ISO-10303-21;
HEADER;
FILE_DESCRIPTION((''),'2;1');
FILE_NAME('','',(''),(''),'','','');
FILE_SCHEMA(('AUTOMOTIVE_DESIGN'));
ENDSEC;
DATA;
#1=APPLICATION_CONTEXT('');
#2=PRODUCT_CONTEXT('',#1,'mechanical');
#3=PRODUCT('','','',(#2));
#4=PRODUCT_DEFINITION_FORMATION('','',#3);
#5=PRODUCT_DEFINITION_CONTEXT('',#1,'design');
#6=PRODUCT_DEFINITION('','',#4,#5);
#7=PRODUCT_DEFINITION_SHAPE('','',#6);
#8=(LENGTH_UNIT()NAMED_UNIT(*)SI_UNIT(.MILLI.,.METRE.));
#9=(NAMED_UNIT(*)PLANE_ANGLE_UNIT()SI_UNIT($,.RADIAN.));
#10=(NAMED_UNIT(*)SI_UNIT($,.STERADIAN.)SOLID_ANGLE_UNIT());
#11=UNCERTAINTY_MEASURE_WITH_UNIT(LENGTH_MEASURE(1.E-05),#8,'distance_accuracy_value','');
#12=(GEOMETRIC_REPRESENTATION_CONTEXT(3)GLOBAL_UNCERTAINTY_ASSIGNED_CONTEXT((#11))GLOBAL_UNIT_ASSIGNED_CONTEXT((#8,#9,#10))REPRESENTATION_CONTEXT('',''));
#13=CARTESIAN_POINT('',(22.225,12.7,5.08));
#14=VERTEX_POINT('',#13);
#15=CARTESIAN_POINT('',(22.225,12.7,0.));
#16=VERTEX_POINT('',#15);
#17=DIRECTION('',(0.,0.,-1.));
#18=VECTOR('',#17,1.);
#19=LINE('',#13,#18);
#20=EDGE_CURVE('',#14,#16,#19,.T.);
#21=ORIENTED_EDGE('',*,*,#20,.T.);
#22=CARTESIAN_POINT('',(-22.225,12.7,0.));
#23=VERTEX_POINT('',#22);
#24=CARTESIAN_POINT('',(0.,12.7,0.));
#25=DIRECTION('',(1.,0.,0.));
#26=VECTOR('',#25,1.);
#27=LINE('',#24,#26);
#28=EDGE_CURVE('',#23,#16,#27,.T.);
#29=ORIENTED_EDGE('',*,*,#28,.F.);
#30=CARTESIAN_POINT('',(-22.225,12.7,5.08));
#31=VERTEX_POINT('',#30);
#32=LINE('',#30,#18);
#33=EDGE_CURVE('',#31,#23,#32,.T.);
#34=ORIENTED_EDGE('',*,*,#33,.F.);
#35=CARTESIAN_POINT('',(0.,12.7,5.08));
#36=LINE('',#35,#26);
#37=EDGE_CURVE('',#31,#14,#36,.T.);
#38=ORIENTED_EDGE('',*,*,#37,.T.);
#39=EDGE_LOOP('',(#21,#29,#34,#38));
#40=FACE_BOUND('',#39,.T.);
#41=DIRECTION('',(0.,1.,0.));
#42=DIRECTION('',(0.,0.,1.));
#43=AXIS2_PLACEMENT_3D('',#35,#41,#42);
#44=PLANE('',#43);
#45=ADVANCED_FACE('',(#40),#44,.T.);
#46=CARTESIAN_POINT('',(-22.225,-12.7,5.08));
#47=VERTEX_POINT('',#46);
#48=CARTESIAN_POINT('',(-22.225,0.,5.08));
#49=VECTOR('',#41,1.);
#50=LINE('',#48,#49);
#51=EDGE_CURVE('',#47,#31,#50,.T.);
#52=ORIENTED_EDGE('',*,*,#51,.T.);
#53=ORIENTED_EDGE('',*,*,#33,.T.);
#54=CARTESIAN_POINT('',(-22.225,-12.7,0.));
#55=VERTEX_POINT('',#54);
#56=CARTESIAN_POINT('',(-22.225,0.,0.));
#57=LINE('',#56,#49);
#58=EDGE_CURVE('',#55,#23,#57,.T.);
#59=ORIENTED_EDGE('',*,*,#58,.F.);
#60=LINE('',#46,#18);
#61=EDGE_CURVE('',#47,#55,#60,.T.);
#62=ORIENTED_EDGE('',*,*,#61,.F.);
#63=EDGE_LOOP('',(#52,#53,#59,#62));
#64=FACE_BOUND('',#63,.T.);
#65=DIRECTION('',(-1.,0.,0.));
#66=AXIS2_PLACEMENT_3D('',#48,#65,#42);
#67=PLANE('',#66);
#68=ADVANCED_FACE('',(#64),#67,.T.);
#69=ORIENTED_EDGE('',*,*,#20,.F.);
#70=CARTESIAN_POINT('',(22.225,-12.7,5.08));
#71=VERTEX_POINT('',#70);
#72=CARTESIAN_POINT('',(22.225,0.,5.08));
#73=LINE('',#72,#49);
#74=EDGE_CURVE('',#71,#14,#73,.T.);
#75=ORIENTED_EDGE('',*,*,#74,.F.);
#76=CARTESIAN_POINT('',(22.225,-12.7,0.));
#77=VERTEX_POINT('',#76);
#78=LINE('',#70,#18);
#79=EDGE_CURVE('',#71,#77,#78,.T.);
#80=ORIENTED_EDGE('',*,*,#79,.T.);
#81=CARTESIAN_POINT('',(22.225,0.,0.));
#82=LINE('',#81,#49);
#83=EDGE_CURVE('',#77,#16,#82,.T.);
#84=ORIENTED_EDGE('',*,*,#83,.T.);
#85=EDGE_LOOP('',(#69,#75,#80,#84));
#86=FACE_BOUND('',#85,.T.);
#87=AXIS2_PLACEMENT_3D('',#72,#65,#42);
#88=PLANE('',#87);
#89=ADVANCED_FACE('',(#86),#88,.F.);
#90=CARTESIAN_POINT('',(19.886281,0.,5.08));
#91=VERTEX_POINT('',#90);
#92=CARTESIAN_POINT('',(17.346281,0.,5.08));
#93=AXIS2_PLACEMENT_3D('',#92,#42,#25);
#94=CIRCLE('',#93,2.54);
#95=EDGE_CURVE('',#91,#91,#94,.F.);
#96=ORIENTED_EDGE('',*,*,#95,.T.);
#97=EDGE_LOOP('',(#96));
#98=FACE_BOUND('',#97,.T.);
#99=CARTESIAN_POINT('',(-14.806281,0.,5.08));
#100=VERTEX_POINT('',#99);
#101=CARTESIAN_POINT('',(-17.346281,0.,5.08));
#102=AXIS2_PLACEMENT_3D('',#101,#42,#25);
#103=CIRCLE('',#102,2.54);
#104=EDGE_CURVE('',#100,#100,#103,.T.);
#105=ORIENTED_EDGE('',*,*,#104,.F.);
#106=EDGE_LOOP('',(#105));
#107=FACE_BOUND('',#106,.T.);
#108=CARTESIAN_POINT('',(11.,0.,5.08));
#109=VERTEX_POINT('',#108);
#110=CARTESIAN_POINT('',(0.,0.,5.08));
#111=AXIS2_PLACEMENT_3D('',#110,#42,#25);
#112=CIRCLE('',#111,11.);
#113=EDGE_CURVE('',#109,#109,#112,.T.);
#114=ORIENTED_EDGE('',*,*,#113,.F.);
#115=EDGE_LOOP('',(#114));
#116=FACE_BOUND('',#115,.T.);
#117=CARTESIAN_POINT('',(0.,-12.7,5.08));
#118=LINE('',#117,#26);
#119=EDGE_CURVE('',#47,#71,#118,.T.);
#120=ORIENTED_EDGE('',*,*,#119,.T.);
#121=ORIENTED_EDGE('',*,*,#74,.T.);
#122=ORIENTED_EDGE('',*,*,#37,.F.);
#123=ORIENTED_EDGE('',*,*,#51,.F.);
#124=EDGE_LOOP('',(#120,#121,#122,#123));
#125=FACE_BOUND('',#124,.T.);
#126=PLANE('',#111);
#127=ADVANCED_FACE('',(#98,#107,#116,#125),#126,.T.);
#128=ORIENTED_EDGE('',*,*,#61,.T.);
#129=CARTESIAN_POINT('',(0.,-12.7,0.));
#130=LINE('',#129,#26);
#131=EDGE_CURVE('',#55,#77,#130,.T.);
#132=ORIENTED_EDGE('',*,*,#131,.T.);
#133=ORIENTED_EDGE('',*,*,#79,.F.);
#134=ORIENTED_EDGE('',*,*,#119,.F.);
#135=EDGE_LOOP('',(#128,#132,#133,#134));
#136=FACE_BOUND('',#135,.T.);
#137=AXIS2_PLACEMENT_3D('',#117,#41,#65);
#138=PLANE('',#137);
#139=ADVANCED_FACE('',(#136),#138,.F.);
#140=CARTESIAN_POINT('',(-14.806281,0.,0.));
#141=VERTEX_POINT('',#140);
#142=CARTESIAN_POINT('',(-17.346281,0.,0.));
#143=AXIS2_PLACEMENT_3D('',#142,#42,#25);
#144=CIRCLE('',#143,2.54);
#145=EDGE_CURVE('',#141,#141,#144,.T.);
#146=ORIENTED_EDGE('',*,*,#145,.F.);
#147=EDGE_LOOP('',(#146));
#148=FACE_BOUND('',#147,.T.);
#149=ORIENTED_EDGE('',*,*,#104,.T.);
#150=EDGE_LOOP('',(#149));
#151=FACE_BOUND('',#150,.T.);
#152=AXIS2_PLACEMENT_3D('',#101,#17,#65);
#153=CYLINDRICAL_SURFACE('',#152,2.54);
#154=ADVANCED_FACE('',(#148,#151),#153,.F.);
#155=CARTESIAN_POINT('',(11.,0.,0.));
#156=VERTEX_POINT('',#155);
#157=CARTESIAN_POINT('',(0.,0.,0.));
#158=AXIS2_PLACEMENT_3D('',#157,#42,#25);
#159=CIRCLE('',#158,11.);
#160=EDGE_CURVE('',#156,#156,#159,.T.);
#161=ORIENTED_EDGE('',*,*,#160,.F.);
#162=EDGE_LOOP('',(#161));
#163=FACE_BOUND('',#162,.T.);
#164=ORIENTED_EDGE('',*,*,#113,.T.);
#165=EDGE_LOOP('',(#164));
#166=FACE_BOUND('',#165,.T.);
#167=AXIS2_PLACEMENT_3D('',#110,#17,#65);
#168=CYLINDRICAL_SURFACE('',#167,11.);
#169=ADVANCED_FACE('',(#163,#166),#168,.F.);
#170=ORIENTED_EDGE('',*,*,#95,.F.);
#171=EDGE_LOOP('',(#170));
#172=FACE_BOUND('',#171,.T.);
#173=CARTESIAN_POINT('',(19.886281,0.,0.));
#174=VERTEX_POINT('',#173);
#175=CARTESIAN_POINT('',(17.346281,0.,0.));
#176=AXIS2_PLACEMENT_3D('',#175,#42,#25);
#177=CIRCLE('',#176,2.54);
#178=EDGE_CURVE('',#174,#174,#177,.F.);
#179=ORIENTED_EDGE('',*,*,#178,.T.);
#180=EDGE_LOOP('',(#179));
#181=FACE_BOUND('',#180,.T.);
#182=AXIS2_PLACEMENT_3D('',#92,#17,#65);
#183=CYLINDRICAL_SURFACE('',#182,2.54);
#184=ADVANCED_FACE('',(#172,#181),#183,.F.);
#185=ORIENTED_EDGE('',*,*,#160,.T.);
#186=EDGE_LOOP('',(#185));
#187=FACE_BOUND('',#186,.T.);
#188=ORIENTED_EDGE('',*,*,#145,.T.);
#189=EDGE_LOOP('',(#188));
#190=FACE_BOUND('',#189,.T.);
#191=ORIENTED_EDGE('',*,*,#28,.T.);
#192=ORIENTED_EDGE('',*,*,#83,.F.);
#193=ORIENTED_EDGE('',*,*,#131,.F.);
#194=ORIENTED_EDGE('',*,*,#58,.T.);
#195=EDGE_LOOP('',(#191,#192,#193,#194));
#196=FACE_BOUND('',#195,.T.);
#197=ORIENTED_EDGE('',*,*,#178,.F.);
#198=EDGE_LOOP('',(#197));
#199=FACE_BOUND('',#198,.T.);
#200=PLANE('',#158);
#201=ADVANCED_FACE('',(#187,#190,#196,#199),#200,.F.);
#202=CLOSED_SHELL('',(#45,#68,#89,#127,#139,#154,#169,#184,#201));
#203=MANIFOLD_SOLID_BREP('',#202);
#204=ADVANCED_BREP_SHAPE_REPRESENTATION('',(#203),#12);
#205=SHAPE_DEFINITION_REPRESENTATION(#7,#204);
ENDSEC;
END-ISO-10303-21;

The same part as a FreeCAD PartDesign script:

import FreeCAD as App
import Part
import Sketcher
Q = App.Units.Quantity


def add_polygon(sketch, points):
    """Adds a closed chain of lines whose ends are joined by coincident constraints."""
    first, n = sketch.GeometryCount, len(points)
    for a, b in zip(points, points[1:] + points[:1]):
        sketch.addGeometry(Part.LineSegment(App.Vector(*a, 0), App.Vector(*b, 0)), False)
    for i in range(n):
        sketch.addConstraint(Sketcher.Constraint("Coincident", first + i, 2, first + (i + 1) % n, 1))

doc = App.newDocument("Part")
body = doc.addObject("PartDesign::Body", "Body")

sketch1 = body.newObject("Sketcher::SketchObject", "Sketch")
sketch1.AttachmentSupport = (doc.getObject("XY_Plane"), [""])
sketch1.MapMode = "FlatFace"
add_polygon(sketch1, [(22.225, 12.7), (-22.225, 12.7), (-22.225, -12.7), (22.225, -12.7)])
sketch1.addGeometry(Part.Circle(App.Vector(17.346281, 0, 0), App.Vector(0, 0, 1), 2.54), False)
sketch1.addGeometry(Part.Circle(App.Vector(0, 0, 0), App.Vector(0, 0, 1), 11), False)
sketch1.addGeometry(Part.Circle(App.Vector(-17.346281, 0, 0), App.Vector(0, 0, 1), 2.54), False)
sketch1.addConstraint(Sketcher.Constraint("Horizontal", 0))
sketch1.addConstraint(Sketcher.Constraint("Vertical", 1))
sketch1.addConstraint(Sketcher.Constraint("Horizontal", 2))
sketch1.addConstraint(Sketcher.Constraint("Vertical", 3))
sketch1.addConstraint(Sketcher.Constraint("Coincident", 5, 3, -1, 1))
sketch1.addConstraint(Sketcher.Constraint("Equal", 4, 6))
sketch1.addConstraint(Sketcher.Constraint("Symmetric", 4, 3, 6, 3, -1, 1))
sketch1.addConstraint(Sketcher.Constraint("Symmetric", 0, 2, 2, 2, -1, 1))
sketch1.addConstraint(Sketcher.Constraint("PointOnObject", 4, 3, -1))
sketch1.addConstraint(Sketcher.Constraint("Diameter", 4, Q("0.2 in")))
sketch1.addConstraint(Sketcher.Constraint("DistanceY", 1, 2, 1, 1, Q("1 in")))
sketch1.addConstraint(Sketcher.Constraint("DistanceX", 0, 2, 0, 1, Q("1.75 in")))
sketch1.addConstraint(Sketcher.Constraint("Diameter", 5, 22.0))
sketch1.addConstraint(Sketcher.Constraint("DistanceX", -1, 1, 4, 3, 17.346281))
pad1 = body.newObject("PartDesign::Pad", "Pad")
pad1.Profile = sketch1
pad1.Length = Q("0.2 in")

doc.recompute()
